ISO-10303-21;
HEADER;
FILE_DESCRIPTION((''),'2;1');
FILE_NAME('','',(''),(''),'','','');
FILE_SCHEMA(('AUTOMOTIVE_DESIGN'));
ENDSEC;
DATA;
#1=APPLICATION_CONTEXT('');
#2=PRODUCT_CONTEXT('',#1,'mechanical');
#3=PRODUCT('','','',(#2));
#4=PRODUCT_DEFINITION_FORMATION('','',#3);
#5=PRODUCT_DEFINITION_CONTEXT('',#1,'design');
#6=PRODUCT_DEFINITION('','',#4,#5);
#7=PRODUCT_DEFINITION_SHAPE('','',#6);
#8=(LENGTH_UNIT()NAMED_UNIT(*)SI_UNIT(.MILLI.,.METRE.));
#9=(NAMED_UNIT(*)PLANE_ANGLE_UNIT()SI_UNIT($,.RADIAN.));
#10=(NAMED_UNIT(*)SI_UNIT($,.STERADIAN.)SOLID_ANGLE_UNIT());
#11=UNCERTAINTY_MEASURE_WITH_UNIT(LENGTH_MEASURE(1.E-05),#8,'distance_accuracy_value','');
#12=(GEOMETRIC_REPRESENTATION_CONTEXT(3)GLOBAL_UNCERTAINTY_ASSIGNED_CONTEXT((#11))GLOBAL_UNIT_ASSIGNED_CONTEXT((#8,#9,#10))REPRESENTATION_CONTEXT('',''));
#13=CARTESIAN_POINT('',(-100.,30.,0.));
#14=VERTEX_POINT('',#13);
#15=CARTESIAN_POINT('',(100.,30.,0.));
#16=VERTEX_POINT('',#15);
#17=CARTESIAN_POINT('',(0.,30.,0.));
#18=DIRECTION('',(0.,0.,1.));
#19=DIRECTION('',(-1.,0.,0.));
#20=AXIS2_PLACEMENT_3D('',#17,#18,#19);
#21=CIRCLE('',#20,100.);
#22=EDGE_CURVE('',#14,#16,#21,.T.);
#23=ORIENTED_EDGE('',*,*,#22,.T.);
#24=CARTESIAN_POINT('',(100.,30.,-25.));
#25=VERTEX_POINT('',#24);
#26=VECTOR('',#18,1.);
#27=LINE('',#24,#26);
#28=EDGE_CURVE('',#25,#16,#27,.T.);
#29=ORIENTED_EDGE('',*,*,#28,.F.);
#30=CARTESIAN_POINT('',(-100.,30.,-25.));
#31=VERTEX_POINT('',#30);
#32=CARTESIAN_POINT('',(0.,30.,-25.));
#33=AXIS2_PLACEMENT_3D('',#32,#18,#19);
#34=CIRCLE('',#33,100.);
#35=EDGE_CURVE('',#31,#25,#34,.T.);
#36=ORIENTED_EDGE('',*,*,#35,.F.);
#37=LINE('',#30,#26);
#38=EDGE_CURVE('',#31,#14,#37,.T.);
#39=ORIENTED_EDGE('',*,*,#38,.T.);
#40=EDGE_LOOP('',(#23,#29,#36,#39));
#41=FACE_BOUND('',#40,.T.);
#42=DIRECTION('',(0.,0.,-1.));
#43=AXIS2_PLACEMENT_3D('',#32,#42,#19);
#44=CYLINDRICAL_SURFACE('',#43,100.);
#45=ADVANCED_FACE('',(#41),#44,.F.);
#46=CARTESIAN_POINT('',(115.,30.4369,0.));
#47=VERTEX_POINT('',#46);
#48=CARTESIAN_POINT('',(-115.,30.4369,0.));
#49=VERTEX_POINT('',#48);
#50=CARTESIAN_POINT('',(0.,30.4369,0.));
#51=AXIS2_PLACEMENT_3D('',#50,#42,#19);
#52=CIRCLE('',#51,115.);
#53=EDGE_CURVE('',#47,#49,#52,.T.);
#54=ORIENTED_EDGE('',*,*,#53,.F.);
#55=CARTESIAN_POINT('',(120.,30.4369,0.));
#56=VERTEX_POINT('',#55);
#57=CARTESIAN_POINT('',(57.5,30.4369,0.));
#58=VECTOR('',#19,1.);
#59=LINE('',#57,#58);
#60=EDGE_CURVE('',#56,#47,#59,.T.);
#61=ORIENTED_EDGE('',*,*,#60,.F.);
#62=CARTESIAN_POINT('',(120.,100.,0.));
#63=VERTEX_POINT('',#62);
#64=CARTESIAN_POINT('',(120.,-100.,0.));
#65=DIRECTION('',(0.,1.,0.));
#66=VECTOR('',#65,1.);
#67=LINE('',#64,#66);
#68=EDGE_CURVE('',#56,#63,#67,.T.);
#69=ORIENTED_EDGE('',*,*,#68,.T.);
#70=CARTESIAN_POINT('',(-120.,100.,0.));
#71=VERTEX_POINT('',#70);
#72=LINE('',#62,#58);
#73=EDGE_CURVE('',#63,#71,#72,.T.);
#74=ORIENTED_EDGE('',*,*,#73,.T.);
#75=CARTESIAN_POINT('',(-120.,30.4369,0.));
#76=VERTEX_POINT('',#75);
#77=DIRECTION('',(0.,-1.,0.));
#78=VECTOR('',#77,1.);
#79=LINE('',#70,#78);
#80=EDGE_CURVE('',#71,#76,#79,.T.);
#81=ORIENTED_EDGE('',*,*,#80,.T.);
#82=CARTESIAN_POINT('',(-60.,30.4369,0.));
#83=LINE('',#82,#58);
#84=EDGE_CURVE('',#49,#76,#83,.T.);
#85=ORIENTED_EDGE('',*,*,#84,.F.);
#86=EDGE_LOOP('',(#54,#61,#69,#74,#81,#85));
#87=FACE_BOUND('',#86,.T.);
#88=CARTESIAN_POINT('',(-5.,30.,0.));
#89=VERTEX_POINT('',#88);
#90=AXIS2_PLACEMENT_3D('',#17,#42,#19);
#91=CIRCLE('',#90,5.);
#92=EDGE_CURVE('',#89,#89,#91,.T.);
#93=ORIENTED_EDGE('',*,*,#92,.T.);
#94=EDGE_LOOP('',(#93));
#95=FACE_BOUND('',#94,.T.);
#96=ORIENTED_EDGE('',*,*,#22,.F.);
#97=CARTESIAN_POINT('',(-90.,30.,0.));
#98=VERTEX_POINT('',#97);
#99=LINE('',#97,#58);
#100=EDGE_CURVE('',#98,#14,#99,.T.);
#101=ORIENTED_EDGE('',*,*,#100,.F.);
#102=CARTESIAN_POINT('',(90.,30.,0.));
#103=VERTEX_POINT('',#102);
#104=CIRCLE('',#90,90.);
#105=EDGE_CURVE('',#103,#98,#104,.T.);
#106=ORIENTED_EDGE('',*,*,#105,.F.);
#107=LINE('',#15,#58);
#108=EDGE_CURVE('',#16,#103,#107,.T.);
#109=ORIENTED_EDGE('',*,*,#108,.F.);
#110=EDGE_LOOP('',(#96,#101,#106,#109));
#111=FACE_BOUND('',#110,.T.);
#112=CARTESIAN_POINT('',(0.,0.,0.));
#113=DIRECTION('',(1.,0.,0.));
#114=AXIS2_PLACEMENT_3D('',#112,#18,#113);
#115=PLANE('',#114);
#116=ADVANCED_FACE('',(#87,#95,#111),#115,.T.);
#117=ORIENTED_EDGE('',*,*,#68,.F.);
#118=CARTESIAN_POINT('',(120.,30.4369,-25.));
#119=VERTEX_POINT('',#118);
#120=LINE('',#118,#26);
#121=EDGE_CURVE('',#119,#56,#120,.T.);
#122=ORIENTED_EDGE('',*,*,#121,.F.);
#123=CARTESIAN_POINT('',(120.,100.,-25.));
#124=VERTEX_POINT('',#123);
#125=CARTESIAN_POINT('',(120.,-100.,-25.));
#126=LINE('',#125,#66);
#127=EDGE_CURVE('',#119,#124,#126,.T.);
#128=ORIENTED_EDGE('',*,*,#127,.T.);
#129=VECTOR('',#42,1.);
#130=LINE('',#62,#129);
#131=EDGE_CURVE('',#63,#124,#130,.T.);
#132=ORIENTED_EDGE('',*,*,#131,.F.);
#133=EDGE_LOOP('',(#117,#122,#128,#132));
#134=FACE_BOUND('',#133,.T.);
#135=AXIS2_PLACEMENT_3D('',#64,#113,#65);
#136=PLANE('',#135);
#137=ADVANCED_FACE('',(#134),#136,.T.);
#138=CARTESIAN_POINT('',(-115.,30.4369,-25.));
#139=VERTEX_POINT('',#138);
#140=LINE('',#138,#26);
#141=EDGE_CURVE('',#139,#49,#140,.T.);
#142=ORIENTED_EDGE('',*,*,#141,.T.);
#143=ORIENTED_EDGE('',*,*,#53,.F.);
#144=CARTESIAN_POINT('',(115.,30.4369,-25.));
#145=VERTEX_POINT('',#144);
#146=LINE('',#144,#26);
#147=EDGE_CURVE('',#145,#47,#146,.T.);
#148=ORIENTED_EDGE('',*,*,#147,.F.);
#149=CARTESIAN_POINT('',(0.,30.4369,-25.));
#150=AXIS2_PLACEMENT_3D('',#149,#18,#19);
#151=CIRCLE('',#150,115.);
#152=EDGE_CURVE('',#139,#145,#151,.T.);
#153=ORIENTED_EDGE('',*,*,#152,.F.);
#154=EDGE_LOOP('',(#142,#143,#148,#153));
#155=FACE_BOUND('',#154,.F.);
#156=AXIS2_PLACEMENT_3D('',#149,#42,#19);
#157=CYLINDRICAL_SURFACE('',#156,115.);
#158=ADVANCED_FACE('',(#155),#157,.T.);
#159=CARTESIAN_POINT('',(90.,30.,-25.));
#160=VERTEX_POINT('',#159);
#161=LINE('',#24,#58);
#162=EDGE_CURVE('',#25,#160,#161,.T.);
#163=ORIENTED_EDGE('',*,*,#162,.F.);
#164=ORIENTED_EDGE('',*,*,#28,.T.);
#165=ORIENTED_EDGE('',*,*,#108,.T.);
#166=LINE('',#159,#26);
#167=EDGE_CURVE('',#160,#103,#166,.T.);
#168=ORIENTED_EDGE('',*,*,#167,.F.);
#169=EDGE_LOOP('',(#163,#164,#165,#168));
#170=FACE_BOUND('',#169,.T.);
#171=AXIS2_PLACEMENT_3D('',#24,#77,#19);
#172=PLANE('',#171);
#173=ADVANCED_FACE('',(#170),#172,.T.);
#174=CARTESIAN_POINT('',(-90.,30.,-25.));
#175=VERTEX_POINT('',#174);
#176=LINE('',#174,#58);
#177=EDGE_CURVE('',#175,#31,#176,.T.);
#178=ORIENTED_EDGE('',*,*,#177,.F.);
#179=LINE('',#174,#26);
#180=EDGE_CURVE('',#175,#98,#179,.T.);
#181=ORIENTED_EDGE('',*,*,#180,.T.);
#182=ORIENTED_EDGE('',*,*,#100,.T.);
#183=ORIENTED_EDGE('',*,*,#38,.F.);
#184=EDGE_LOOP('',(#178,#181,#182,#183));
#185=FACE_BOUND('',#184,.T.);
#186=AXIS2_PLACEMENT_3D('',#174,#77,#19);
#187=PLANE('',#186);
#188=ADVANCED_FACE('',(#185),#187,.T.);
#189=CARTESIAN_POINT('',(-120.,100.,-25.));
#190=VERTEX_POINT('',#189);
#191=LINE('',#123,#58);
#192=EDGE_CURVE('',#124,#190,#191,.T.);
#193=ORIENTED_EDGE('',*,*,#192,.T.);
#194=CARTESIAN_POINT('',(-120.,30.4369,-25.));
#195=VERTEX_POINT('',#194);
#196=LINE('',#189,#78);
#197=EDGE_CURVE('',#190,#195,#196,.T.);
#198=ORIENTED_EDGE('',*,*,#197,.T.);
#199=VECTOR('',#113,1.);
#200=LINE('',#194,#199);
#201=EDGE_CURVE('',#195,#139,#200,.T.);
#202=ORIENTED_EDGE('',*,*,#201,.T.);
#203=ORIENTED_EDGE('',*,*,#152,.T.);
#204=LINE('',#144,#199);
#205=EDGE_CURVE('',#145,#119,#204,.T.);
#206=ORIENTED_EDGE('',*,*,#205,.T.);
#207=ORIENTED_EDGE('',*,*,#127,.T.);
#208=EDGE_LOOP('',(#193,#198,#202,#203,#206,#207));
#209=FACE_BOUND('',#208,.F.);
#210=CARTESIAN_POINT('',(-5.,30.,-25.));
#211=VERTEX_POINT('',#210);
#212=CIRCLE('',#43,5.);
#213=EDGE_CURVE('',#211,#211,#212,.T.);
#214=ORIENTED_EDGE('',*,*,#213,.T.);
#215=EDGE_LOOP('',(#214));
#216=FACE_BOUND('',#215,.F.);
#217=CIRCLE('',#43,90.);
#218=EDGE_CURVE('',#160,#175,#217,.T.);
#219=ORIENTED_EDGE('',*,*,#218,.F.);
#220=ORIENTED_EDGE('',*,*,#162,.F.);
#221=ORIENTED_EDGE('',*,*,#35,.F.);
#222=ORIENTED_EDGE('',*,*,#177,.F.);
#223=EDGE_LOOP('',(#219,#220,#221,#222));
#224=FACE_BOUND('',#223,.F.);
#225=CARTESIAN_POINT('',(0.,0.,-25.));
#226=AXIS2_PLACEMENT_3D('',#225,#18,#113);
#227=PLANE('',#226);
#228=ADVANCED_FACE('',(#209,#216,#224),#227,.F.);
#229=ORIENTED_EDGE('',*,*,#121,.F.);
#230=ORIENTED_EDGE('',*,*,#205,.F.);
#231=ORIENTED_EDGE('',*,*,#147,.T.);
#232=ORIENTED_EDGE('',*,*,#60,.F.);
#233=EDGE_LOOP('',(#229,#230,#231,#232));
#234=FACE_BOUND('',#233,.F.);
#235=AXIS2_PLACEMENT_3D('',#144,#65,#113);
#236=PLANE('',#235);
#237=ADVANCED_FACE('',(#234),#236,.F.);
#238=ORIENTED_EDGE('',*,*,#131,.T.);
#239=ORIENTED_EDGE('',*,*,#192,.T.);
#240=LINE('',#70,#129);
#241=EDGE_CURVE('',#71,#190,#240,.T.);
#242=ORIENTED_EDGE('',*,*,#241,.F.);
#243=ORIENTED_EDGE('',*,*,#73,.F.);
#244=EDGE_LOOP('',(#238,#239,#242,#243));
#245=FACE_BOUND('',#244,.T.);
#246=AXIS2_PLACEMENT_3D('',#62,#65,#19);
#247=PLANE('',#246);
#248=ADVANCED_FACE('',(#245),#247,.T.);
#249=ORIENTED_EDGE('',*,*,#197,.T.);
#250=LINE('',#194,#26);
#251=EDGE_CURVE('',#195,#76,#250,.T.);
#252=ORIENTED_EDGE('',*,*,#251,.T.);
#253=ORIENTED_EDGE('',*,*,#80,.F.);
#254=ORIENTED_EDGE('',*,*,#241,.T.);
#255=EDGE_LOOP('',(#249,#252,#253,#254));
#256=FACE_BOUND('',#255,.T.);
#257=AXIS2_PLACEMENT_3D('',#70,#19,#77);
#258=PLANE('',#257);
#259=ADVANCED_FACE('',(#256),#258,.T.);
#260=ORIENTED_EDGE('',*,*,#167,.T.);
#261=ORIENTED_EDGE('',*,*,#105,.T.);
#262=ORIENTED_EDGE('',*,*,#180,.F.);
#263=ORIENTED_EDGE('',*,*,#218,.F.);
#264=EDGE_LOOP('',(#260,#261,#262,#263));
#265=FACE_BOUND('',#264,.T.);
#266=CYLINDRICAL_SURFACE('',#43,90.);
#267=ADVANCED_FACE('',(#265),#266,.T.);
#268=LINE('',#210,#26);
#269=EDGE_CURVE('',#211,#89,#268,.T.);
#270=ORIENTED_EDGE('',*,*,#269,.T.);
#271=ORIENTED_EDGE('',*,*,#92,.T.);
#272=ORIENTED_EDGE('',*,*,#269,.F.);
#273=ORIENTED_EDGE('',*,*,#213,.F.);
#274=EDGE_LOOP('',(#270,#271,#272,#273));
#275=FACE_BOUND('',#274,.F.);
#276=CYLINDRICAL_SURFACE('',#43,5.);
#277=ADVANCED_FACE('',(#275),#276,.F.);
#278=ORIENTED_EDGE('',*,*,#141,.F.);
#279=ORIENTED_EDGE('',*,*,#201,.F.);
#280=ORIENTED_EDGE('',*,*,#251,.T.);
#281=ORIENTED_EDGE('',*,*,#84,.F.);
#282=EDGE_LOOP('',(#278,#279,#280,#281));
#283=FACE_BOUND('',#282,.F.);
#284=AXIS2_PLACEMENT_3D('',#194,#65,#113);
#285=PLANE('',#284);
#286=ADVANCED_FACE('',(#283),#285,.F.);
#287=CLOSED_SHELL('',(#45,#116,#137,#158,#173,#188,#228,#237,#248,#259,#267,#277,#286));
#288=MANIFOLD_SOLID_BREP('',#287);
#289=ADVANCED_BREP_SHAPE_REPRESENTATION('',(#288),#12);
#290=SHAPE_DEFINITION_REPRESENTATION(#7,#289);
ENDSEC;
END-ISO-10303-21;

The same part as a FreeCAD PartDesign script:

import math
import FreeCAD as App
import Part
import Sketcher
from FreeCAD import Vector

doc = App.newDocument("Part")
params = doc.addObject("Spreadsheet::Sheet", "Params")
for row, (alias, value) in enumerate([
    ("sketch1_width", "240 mm"),
    ("sketch1_height", "200 mm"),
    ("pad1_length", "25 mm"),
    ("sketch2_diameter", "10 mm"),
    ("sketch2_radius", "100 mm"),
    ("sketch2_radius2", "90 mm"),
    ("pocket1_length", "25 mm"),
    ("sketch3_radius", "115 mm"),
    ("sketch3_width", "5 mm"),
    ("pocket2_length", "30 mm"),
], start=1):
    params.set(f"A{row}", alias)
    params.set(f"B{row}", "=" + value)
    params.setAlias(f"B{row}", alias)

body = doc.addObject("PartDesign::Body", "Body")

sketch1 = doc.addObject("Sketcher::SketchObject", "Sketch")
body.addObject(sketch1)
sketch1.AttachmentSupport = (doc.XY_Plane, [""])
sketch1.MapMode = "FlatFace"
sketch1.addGeometry([
    Part.LineSegment(Vector(-120, 100, 0), Vector(-120, -100, 0)),
    Part.LineSegment(Vector(-120, -100, 0), Vector(120, -100, 0)),
    Part.LineSegment(Vector(120, -100, 0), Vector(120, 100, 0)),
    Part.LineSegment(Vector(120, 100, 0), Vector(-120, 100, 0)),
], False)
sketch1.addConstraint([
    Sketcher.Constraint("Coincident", 0, 2, 1, 1),
    Sketcher.Constraint("Coincident", 1, 2, 2, 1),
    Sketcher.Constraint("Coincident", 2, 2, 3, 1),
    Sketcher.Constraint("Coincident", 3, 2, 0, 1),
    Sketcher.Constraint("Vertical", 0),
    Sketcher.Constraint("Horizontal", 1),
    Sketcher.Constraint("Vertical", 2),
    Sketcher.Constraint("Horizontal", 3),
    Sketcher.Constraint("Symmetric", 0, 2, 2, 2, -1, 1),
    Sketcher.Constraint("DistanceX", 1, 1, 1, 2, 240.0),
    Sketcher.Constraint("DistanceY", 0, 2, 0, 1, 200.0),
])
sketch1.setExpression("Constraints[9]", "Params.sketch1_width")
sketch1.setExpression("Constraints[10]", "Params.sketch1_height")
pad1 = doc.addObject("PartDesign::Pad", "Pad")
body.addObject(pad1)
pad1.Profile = sketch1
pad1.setExpression("Length", "Params.pad1_length")
pad1.Reversed = True

sketch2 = doc.addObject("Sketcher::SketchObject", "Sketch001")
body.addObject(sketch2)
sketch2.AttachmentSupport = (doc.XY_Plane, [""])
sketch2.MapMode = "FlatFace"
sketch2.AttachmentOffset = App.Placement(Vector(0, 0, -25), App.Rotation())
sketch2.addGeometry([
    Part.Circle(Vector(0, 30, 0), Vector(0, 0, 1), 5),
    Part.LineSegment(Vector(90, 30, 0), Vector(100, 30, 0)),
    Part.ArcOfCircle(Part.Circle(Vector(0, 30, 0), Vector(0, 0, 1), 100), math.radians(180), math.radians(360)),
    Part.LineSegment(Vector(-100, 30, 0), Vector(-90, 30, 0)),
    Part.ArcOfCircle(Part.Circle(Vector(0, 30, 0), Vector(0, 0, 1), 90), math.radians(180), math.radians(360)),
], False)
sketch2.addConstraint([
    Sketcher.Constraint("Coincident", 1, 2, 2, 2),
    Sketcher.Constraint("Coincident", 2, 1, 3, 1),
    Sketcher.Constraint("Coincident", 3, 2, 4, 1),
    Sketcher.Constraint("Coincident", 4, 2, 1, 1),
    Sketcher.Constraint("Horizontal", 1),
    Sketcher.Constraint("Horizontal", 3),
    Sketcher.Constraint("Coincident", 2, 3, 0, 3),
    Sketcher.Constraint("Coincident", 4, 3, 0, 3),
    Sketcher.Constraint("Symmetric", 1, 2, 2, 1, -2),
    Sketcher.Constraint("Horizontal", 4, 3, 1, 2),
    Sketcher.Constraint("Diameter", 0, 10.0),
    Sketcher.Constraint("Radius", 2, 100.0),
    Sketcher.Constraint("Radius", 4, 90.0),
    Sketcher.Constraint("DistanceY", -1, 1, 0, 3, 30.0),
])
sketch2.setExpression("Constraints[10]", "Params.sketch2_diameter")
sketch2.setExpression("Constraints[11]", "Params.sketch2_radius")
sketch2.setExpression("Constraints[12]", "Params.sketch2_radius2")
pocket1 = doc.addObject("PartDesign::Pocket", "Pocket")
body.addObject(pocket1)
pocket1.Profile = sketch2
pocket1.setExpression("Length", "Params.pocket1_length")
pocket1.Reversed = True

sketch3 = doc.addObject("Sketcher::SketchObject", "Sketch002")
body.addObject(sketch3)
sketch3.AttachmentSupport = (doc.XY_Plane, [""])
sketch3.MapMode = "FlatFace"
sketch3.AttachmentOffset = App.Placement(Vector(0, 0, -25), App.Rotation())
sketch3.addGeometry([
    Part.ArcOfCircle(Part.Circle(Vector(0, 30, 0), Vector(0, 0, 1), 115), math.radians(180), math.radians(360)),
    Part.LineSegment(Vector(115, 30, 0), Vector(120, 30, 0)),
    Part.LineSegment(Vector(120, 30, 0), Vector(120, -100, 0)),
    Part.LineSegment(Vector(120, -100, 0), Vector(-120, -100, 0)),
    Part.LineSegment(Vector(-120, -100, 0), Vector(-120, 30, 0)),
    Part.LineSegment(Vector(-120, 30, 0), Vector(-115, 30, 0)),
], False)
sketch3.addConstraint([
    Sketcher.Constraint("Coincident", 0, 2, 1, 1),
    Sketcher.Constraint("Coincident", 1, 2, 2, 1),
    Sketcher.Constraint("Coincident", 2, 2, 3, 1),
    Sketcher.Constraint("Coincident", 3, 2, 4, 1),
    Sketcher.Constraint("Coincident", 4, 2, 5, 1),
    Sketcher.Constraint("Coincident", 5, 2, 0, 1),
    Sketcher.Constraint("Horizontal", 1),
    Sketcher.Constraint("Vertical", 2),
    Sketcher.Constraint("Horizontal", 3),
    Sketcher.Constraint("Vertical", 4),
    Sketcher.Constraint("Horizontal", 5),
    Sketcher.Constraint("Symmetric", 1, 2, 4, 2, -2),
    Sketcher.Constraint("PointOnObject", 0, 3, -2),
    Sketcher.Constraint("Radius", 0, 115.0),
    Sketcher.Constraint("DistanceX", 1, 1, 1, 2, 5.0),
    Sketcher.Constraint("DistanceY", 2, 2, -1, 1, 100.0),
    Sketcher.Constraint("DistanceY", 2, 2, 2, 1, 130.437),
    Sketcher.Constraint("DistanceY", -1, 1, 0, 3, 30.437),
])
sketch3.setExpression("Constraints[13]", "Params.sketch3_radius")
sketch3.setExpression("Constraints[14]", "Params.sketch3_width")
pocket2 = doc.addObject("PartDesign::Pocket", "Pocket001")
body.addObject(pocket2)
pocket2.Profile = sketch3
pocket2.setExpression("Length", "Params.pocket2_length")
pocket2.Reversed = True

doc.recompute()
